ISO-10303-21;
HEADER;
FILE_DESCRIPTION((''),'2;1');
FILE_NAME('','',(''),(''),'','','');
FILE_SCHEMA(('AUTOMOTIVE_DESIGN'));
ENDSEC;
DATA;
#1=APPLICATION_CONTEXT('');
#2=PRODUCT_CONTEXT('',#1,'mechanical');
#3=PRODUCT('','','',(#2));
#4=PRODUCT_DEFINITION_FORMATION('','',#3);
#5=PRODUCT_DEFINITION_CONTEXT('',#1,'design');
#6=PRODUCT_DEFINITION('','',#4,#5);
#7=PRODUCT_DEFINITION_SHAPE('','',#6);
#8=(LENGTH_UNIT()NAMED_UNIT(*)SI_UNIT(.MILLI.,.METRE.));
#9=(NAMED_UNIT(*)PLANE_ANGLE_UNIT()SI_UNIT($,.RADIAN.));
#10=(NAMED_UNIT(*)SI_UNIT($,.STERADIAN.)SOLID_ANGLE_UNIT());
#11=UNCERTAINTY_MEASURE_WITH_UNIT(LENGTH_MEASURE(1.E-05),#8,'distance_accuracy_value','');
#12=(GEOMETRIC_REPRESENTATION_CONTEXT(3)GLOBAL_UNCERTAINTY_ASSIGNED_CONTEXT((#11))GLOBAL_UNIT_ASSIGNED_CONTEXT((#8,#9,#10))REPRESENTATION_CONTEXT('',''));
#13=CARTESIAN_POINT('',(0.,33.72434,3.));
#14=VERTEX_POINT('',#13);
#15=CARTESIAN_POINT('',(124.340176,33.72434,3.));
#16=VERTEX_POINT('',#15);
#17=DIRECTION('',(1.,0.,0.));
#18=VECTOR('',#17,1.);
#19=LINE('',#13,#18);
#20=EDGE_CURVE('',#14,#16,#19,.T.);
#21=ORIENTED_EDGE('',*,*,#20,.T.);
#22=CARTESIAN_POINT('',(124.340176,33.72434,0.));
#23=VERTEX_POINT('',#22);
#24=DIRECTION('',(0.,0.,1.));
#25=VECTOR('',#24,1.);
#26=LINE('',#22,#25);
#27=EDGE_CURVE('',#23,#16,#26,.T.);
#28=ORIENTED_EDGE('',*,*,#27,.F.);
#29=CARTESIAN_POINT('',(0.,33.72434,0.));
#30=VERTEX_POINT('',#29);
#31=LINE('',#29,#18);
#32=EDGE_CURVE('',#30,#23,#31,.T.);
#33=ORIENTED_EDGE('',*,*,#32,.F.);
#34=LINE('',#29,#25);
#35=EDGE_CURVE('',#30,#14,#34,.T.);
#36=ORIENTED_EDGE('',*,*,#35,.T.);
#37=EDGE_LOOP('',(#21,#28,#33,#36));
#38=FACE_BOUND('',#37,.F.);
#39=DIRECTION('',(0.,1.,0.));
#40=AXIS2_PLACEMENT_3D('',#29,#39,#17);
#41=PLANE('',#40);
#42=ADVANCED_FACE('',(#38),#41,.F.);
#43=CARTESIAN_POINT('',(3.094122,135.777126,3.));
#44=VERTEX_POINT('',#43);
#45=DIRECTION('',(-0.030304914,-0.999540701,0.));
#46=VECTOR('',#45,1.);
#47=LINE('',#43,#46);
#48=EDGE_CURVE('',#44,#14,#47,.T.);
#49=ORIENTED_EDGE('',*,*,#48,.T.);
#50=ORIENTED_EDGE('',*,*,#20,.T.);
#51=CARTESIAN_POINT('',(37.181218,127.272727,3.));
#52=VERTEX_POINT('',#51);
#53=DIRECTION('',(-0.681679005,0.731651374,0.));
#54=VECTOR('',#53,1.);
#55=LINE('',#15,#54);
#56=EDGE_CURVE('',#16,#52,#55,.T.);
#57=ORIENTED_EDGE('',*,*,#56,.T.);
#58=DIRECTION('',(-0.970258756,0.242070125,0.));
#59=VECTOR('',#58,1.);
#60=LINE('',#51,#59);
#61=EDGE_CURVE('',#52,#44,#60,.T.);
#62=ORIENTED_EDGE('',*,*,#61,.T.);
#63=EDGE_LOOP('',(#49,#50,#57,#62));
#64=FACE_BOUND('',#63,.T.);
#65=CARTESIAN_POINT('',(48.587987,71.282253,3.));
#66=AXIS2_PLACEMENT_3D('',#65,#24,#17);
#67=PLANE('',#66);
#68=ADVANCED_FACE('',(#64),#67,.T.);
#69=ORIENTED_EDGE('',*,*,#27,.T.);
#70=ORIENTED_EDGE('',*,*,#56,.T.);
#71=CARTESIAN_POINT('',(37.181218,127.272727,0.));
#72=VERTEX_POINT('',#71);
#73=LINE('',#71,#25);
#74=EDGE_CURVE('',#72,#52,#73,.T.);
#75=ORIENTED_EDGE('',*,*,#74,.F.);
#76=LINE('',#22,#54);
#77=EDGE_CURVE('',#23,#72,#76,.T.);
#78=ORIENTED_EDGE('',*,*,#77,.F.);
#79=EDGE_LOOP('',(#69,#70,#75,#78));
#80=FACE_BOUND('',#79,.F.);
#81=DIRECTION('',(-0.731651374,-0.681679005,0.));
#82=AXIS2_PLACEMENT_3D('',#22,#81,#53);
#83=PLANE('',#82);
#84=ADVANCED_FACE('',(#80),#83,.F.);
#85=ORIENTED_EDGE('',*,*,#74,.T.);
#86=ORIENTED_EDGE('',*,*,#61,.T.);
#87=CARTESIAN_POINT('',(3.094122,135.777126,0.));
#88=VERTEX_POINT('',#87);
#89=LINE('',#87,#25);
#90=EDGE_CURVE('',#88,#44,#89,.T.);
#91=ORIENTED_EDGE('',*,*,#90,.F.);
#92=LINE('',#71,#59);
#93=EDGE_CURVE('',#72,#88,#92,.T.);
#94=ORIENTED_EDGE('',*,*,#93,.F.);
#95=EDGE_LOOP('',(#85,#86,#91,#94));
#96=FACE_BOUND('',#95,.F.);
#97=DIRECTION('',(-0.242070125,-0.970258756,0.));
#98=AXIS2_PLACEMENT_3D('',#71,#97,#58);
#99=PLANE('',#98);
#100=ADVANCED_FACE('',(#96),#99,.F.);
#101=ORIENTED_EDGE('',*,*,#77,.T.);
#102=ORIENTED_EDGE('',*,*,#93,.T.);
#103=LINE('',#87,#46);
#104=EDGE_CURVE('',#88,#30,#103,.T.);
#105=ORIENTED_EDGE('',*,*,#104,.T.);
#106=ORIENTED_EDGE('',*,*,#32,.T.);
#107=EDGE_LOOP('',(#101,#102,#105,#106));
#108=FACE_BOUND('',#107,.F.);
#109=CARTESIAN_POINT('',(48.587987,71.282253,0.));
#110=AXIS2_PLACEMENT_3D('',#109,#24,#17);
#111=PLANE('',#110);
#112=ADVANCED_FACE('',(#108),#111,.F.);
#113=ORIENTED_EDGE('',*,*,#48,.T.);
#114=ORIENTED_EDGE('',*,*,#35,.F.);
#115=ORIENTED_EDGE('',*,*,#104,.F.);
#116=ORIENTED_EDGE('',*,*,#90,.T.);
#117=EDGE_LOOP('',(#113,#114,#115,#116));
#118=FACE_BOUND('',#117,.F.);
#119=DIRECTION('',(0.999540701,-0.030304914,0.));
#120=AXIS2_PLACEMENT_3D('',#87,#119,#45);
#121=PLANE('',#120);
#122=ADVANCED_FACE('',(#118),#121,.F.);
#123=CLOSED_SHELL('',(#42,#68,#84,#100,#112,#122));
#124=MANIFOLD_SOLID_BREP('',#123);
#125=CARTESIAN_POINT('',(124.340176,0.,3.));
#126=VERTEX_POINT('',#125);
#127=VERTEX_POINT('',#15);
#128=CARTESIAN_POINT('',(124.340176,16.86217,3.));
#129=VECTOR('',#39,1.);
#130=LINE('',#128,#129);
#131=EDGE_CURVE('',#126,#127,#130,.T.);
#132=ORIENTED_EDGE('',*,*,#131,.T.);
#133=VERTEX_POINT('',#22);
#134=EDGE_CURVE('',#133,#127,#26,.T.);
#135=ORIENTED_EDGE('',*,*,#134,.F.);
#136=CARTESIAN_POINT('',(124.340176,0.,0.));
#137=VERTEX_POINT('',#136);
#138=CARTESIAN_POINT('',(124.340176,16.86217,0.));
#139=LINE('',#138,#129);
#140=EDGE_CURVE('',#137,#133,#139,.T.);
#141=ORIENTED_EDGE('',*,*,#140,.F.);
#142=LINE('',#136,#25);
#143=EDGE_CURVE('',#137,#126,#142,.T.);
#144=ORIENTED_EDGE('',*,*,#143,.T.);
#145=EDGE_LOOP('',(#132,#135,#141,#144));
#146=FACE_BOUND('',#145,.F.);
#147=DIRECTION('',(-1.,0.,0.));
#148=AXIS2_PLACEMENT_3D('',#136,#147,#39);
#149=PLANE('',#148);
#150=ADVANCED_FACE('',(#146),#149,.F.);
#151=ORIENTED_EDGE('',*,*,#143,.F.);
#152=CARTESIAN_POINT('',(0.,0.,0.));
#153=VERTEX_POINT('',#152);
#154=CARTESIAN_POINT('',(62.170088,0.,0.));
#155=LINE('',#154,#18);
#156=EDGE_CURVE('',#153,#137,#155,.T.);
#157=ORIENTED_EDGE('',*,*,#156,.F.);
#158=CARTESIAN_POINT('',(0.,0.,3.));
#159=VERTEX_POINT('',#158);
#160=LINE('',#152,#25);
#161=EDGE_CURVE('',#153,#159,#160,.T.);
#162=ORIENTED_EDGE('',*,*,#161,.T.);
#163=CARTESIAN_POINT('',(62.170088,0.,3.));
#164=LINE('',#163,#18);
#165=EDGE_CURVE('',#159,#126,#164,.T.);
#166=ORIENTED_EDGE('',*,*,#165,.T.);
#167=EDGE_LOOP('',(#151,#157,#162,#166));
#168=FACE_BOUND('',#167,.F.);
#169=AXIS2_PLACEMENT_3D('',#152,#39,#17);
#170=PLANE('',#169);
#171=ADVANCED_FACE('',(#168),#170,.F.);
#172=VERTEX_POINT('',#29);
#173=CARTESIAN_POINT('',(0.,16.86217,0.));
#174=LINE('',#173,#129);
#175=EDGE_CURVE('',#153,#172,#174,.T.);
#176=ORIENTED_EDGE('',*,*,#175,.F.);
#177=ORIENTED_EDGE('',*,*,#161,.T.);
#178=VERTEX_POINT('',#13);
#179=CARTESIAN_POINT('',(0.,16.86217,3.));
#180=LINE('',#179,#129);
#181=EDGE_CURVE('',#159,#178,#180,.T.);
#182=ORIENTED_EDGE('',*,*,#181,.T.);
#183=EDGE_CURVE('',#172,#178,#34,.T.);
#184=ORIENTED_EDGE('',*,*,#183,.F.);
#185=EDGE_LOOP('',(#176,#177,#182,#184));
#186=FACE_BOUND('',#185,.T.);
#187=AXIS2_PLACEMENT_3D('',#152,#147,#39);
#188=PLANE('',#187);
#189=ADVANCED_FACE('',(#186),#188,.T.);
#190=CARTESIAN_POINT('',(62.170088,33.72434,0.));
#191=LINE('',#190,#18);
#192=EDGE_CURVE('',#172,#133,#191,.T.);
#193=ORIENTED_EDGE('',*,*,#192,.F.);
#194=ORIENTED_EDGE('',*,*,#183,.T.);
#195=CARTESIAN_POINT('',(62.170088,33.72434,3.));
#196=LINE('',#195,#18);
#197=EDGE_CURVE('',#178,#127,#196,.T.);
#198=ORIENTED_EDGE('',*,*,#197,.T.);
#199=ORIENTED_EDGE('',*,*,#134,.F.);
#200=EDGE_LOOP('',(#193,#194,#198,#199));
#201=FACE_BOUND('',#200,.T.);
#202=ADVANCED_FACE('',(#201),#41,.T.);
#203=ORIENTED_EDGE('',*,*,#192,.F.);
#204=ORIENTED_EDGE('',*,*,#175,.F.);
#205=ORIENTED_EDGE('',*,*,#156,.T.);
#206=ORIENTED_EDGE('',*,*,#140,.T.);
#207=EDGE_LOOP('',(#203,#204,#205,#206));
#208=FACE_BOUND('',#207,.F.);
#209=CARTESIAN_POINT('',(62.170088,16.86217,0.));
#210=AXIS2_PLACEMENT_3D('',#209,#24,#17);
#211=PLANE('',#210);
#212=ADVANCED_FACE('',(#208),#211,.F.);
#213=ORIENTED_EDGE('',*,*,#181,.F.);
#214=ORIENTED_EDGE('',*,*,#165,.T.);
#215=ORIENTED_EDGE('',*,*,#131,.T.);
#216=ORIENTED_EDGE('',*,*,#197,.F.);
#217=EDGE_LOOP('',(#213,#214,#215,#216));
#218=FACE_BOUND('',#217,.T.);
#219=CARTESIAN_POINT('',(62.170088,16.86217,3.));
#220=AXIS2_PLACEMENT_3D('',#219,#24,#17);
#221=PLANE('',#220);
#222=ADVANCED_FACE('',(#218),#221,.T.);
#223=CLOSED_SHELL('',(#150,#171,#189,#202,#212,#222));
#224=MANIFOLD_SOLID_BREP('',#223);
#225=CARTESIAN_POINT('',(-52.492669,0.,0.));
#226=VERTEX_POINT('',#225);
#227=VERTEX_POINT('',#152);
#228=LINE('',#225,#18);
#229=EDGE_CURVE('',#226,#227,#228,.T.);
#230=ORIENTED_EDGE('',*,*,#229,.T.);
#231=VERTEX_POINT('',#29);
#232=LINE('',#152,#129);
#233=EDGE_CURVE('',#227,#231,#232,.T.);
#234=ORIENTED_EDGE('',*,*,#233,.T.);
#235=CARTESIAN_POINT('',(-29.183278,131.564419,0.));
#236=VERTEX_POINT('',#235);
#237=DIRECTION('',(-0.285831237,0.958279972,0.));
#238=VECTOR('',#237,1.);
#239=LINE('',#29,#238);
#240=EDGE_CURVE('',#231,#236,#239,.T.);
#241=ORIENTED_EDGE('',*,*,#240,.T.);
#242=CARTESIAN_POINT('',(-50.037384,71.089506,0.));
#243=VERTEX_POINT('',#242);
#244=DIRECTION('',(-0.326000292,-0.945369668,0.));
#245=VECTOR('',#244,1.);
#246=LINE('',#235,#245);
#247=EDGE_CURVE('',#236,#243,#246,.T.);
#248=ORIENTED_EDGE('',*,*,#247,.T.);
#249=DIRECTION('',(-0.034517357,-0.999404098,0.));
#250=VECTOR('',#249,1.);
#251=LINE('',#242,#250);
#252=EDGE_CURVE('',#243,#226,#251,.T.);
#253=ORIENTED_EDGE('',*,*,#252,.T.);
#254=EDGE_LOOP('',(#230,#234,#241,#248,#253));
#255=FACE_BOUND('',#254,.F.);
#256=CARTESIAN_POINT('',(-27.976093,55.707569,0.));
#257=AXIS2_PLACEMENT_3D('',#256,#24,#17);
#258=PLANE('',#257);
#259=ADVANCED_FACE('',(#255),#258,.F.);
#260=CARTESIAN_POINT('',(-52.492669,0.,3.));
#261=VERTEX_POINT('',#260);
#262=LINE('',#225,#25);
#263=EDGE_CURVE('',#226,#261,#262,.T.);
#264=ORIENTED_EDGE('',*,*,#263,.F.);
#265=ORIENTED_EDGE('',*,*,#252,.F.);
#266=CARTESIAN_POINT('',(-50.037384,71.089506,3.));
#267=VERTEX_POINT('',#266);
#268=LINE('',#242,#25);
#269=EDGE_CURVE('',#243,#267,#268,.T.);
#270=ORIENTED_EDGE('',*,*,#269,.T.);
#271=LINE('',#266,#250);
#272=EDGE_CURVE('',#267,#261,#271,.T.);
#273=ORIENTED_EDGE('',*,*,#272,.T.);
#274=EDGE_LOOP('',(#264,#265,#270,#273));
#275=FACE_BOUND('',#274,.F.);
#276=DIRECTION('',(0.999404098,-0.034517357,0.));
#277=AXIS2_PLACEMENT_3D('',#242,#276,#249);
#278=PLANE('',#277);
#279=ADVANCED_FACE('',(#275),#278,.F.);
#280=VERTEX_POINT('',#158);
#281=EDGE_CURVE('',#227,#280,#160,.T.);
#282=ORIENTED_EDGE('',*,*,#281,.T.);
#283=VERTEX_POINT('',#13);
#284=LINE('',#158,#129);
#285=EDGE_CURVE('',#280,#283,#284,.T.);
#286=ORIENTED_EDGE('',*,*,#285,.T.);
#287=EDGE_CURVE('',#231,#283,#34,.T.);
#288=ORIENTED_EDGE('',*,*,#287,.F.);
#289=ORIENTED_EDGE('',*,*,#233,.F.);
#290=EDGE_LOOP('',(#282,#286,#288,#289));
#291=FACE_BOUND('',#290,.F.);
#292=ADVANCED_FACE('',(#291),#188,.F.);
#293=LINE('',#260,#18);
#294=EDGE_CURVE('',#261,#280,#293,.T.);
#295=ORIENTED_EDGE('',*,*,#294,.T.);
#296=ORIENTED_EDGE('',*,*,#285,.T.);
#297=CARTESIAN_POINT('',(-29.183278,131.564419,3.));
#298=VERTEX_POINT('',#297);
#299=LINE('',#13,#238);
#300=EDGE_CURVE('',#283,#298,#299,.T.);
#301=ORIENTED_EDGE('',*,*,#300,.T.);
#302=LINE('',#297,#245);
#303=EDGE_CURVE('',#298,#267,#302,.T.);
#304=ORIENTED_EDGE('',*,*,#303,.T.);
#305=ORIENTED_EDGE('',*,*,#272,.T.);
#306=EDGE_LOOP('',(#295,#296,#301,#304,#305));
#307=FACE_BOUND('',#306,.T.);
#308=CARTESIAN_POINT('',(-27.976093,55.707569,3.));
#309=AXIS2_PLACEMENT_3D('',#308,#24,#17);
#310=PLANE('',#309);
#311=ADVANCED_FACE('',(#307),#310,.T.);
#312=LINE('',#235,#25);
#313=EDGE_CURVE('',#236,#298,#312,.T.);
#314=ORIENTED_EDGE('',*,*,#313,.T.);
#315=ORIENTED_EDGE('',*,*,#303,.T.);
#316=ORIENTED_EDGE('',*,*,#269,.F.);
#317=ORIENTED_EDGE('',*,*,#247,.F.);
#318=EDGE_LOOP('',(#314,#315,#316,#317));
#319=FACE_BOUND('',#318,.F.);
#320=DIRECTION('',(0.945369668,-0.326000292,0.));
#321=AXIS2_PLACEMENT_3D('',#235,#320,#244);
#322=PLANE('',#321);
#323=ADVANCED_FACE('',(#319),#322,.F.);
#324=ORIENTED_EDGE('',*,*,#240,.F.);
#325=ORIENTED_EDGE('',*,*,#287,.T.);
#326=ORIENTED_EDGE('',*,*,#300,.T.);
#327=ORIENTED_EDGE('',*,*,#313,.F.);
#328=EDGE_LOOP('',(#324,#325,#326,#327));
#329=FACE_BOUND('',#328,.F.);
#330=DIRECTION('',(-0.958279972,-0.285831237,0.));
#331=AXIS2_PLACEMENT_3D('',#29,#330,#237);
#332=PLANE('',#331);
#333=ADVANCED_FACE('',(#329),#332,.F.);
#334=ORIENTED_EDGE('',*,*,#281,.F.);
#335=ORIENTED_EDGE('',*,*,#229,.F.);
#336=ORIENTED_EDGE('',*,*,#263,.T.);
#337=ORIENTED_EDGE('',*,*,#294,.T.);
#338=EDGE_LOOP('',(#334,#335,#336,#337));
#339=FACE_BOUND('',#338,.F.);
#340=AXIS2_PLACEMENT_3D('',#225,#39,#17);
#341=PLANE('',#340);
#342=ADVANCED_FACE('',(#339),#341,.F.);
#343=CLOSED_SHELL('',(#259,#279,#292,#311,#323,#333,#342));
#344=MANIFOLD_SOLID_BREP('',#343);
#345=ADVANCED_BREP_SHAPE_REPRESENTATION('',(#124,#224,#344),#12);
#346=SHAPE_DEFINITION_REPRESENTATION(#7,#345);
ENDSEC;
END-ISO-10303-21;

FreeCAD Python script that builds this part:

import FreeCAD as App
import Part
import Sketcher

doc = App.newDocument("Part")
body = doc.addObject("PartDesign::Body", "Body")
body.AllowCompound = True

sketch1 = body.newObject("Sketcher::SketchObject", "Sketch")
sketch1.AttachmentSupport = (doc.getObject("XY_Plane"), [""])
sketch1.MapMode = "FlatFace"
sketch1.addGeometry(Part.LineSegment(App.Vector(-52.492669, 0, 0), App.Vector(0, 0, 0)), False)
sketch1.addGeometry(Part.LineSegment(App.Vector(0, 0, 0), App.Vector(0, 33.72434, 0)), False)
sketch1.addGeometry(Part.LineSegment(App.Vector(0, 33.72434, 0), App.Vector(-29.183278, 131.564419, 0)), False)
sketch1.addGeometry(Part.LineSegment(App.Vector(-29.183278, 131.564419, 0), App.Vector(-50.037384, 71.089506, 0)), False)
sketch1.addGeometry(Part.LineSegment(App.Vector(-50.037384, 71.089506, 0), App.Vector(-52.492669, 0, 0)), False)
sketch1.addGeometry(Part.LineSegment(App.Vector(3.094122, 135.777126, 0), App.Vector(0, 33.72434, 0)), False)
sketch1.addGeometry(Part.LineSegment(App.Vector(0, 33.72434, 0), App.Vector(124.340176, 33.72434, 0)), False)
sketch1.addGeometry(Part.LineSegment(App.Vector(124.340176, 33.72434, 0), App.Vector(37.181218, 127.272727, 0)), False)
sketch1.addGeometry(Part.LineSegment(App.Vector(37.181218, 127.272727, 0), App.Vector(3.094122, 135.777126, 0)), False)
sketch1.addConstraint(Sketcher.Constraint("Coincident", 0, 2, 1, 1))
sketch1.addConstraint(Sketcher.Constraint("Coincident", 1, 2, 2, 1))
sketch1.addConstraint(Sketcher.Constraint("Coincident", 2, 2, 3, 1))
sketch1.addConstraint(Sketcher.Constraint("Coincident", 3, 2, 4, 1))
sketch1.addConstraint(Sketcher.Constraint("Coincident", 4, 2, 0, 1))
sketch1.addConstraint(Sketcher.Constraint("Coincident", 5, 2, 6, 1))
sketch1.addConstraint(Sketcher.Constraint("Coincident", 6, 2, 7, 1))
sketch1.addConstraint(Sketcher.Constraint("Coincident", 7, 2, 8, 1))
sketch1.addConstraint(Sketcher.Constraint("Coincident", 8, 2, 5, 1))
sketch1.addConstraint(Sketcher.Constraint("Horizontal", 0))
sketch1.addConstraint(Sketcher.Constraint("Vertical", 1))
sketch1.addConstraint(Sketcher.Constraint("Horizontal", 6))
sketch1.addConstraint(Sketcher.Constraint("Coincident", 0, 2, -1, 1))
sketch1.addConstraint(Sketcher.Constraint("Coincident", 5, 2, 1, 2))
sketch1.addConstraint(Sketcher.Constraint("Equal", 2, 5))
sketch1.addConstraint(Sketcher.Constraint("DistanceX", 0, 1, 0, 2, 52.492669))
sketch1.addConstraint(Sketcher.Constraint("DistanceY", 1, 1, 1, 2, 33.72434))
sketch1.addConstraint(Sketcher.Constraint("DistanceX", 2, 2, 8, 2, 32.2774))
sketch1.addConstraint(Sketcher.Constraint("DistanceY", 7, 2, 8, 2, 8.504399))
sketch1.addConstraint(Sketcher.Constraint("Distance", 2, 102.099681))
sketch1.addConstraint(Sketcher.Constraint("DistanceX", 6, 1, 6, 2, 124.340176))
sketch1.addConstraint(Sketcher.Constraint("DistanceX", 2, 2, -1, 1, 29.183278))
sketch1.addConstraint(Sketcher.Constraint("DistanceX", 3, 2, 6, 2, 174.37756))
sketch1.addConstraint(Sketcher.Constraint("DistanceY", 3, 2, 7, 2, 56.183221))
sketch1.addConstraint(Sketcher.Constraint("DistanceX", 7, 2, 6, 2, 87.158958))
pad1 = body.newObject("PartDesign::Pad", "Pad")
pad1.Profile = sketch1
pad1.Length = 3
body2 = doc.addObject("PartDesign::Body", "Body001")

sketch2 = body2.newObject("Sketcher::SketchObject", "Sketch001")
sketch2.AttachmentSupport = (doc.getObject("XY_Plane001"), [""])
sketch2.MapMode = "FlatFace"
sketch2.addGeometry(Part.LineSegment(App.Vector(0, 33.72434, 0), App.Vector(0, 0, 0)), False)
sketch2.addGeometry(Part.LineSegment(App.Vector(0, 0, 0), App.Vector(124.340176, 0, 0)), False)
sketch2.addGeometry(Part.LineSegment(App.Vector(124.340176, 0, 0), App.Vector(124.340176, 33.72434, 0)), False)
sketch2.addGeometry(Part.LineSegment(App.Vector(124.340176, 33.72434, 0), App.Vector(0, 33.72434, 0)), False)
sketch2.addConstraint(Sketcher.Constraint("Coincident", 0, 2, 1, 1))
sketch2.addConstraint(Sketcher.Constraint("Coincident", 1, 2, 2, 1))
sketch2.addConstraint(Sketcher.Constraint("Coincident", 2, 2, 3, 1))
sketch2.addConstraint(Sketcher.Constraint("Coincident", 3, 2, 0, 1))
sketch2.addConstraint(Sketcher.Constraint("Vertical", 0))
sketch2.addConstraint(Sketcher.Constraint("Horizontal", 1))
sketch2.addConstraint(Sketcher.Constraint("Vertical", 2))
sketch2.addConstraint(Sketcher.Constraint("Horizontal", 3))
sketch2.addConstraint(Sketcher.Constraint("Coincident", 0, 2, -1, 1))
sketch2.addConstraint(Sketcher.Constraint("DistanceY", 0, 2, 0, 1, 33.72434))
sketch2.addConstraint(Sketcher.Constraint("DistanceX", 1, 1, 1, 2, 124.340176))
pad2 = body2.newObject("PartDesign::Pad", "Pad001")
pad2.Profile = sketch2
pad2.Length = 3

doc.recompute()
